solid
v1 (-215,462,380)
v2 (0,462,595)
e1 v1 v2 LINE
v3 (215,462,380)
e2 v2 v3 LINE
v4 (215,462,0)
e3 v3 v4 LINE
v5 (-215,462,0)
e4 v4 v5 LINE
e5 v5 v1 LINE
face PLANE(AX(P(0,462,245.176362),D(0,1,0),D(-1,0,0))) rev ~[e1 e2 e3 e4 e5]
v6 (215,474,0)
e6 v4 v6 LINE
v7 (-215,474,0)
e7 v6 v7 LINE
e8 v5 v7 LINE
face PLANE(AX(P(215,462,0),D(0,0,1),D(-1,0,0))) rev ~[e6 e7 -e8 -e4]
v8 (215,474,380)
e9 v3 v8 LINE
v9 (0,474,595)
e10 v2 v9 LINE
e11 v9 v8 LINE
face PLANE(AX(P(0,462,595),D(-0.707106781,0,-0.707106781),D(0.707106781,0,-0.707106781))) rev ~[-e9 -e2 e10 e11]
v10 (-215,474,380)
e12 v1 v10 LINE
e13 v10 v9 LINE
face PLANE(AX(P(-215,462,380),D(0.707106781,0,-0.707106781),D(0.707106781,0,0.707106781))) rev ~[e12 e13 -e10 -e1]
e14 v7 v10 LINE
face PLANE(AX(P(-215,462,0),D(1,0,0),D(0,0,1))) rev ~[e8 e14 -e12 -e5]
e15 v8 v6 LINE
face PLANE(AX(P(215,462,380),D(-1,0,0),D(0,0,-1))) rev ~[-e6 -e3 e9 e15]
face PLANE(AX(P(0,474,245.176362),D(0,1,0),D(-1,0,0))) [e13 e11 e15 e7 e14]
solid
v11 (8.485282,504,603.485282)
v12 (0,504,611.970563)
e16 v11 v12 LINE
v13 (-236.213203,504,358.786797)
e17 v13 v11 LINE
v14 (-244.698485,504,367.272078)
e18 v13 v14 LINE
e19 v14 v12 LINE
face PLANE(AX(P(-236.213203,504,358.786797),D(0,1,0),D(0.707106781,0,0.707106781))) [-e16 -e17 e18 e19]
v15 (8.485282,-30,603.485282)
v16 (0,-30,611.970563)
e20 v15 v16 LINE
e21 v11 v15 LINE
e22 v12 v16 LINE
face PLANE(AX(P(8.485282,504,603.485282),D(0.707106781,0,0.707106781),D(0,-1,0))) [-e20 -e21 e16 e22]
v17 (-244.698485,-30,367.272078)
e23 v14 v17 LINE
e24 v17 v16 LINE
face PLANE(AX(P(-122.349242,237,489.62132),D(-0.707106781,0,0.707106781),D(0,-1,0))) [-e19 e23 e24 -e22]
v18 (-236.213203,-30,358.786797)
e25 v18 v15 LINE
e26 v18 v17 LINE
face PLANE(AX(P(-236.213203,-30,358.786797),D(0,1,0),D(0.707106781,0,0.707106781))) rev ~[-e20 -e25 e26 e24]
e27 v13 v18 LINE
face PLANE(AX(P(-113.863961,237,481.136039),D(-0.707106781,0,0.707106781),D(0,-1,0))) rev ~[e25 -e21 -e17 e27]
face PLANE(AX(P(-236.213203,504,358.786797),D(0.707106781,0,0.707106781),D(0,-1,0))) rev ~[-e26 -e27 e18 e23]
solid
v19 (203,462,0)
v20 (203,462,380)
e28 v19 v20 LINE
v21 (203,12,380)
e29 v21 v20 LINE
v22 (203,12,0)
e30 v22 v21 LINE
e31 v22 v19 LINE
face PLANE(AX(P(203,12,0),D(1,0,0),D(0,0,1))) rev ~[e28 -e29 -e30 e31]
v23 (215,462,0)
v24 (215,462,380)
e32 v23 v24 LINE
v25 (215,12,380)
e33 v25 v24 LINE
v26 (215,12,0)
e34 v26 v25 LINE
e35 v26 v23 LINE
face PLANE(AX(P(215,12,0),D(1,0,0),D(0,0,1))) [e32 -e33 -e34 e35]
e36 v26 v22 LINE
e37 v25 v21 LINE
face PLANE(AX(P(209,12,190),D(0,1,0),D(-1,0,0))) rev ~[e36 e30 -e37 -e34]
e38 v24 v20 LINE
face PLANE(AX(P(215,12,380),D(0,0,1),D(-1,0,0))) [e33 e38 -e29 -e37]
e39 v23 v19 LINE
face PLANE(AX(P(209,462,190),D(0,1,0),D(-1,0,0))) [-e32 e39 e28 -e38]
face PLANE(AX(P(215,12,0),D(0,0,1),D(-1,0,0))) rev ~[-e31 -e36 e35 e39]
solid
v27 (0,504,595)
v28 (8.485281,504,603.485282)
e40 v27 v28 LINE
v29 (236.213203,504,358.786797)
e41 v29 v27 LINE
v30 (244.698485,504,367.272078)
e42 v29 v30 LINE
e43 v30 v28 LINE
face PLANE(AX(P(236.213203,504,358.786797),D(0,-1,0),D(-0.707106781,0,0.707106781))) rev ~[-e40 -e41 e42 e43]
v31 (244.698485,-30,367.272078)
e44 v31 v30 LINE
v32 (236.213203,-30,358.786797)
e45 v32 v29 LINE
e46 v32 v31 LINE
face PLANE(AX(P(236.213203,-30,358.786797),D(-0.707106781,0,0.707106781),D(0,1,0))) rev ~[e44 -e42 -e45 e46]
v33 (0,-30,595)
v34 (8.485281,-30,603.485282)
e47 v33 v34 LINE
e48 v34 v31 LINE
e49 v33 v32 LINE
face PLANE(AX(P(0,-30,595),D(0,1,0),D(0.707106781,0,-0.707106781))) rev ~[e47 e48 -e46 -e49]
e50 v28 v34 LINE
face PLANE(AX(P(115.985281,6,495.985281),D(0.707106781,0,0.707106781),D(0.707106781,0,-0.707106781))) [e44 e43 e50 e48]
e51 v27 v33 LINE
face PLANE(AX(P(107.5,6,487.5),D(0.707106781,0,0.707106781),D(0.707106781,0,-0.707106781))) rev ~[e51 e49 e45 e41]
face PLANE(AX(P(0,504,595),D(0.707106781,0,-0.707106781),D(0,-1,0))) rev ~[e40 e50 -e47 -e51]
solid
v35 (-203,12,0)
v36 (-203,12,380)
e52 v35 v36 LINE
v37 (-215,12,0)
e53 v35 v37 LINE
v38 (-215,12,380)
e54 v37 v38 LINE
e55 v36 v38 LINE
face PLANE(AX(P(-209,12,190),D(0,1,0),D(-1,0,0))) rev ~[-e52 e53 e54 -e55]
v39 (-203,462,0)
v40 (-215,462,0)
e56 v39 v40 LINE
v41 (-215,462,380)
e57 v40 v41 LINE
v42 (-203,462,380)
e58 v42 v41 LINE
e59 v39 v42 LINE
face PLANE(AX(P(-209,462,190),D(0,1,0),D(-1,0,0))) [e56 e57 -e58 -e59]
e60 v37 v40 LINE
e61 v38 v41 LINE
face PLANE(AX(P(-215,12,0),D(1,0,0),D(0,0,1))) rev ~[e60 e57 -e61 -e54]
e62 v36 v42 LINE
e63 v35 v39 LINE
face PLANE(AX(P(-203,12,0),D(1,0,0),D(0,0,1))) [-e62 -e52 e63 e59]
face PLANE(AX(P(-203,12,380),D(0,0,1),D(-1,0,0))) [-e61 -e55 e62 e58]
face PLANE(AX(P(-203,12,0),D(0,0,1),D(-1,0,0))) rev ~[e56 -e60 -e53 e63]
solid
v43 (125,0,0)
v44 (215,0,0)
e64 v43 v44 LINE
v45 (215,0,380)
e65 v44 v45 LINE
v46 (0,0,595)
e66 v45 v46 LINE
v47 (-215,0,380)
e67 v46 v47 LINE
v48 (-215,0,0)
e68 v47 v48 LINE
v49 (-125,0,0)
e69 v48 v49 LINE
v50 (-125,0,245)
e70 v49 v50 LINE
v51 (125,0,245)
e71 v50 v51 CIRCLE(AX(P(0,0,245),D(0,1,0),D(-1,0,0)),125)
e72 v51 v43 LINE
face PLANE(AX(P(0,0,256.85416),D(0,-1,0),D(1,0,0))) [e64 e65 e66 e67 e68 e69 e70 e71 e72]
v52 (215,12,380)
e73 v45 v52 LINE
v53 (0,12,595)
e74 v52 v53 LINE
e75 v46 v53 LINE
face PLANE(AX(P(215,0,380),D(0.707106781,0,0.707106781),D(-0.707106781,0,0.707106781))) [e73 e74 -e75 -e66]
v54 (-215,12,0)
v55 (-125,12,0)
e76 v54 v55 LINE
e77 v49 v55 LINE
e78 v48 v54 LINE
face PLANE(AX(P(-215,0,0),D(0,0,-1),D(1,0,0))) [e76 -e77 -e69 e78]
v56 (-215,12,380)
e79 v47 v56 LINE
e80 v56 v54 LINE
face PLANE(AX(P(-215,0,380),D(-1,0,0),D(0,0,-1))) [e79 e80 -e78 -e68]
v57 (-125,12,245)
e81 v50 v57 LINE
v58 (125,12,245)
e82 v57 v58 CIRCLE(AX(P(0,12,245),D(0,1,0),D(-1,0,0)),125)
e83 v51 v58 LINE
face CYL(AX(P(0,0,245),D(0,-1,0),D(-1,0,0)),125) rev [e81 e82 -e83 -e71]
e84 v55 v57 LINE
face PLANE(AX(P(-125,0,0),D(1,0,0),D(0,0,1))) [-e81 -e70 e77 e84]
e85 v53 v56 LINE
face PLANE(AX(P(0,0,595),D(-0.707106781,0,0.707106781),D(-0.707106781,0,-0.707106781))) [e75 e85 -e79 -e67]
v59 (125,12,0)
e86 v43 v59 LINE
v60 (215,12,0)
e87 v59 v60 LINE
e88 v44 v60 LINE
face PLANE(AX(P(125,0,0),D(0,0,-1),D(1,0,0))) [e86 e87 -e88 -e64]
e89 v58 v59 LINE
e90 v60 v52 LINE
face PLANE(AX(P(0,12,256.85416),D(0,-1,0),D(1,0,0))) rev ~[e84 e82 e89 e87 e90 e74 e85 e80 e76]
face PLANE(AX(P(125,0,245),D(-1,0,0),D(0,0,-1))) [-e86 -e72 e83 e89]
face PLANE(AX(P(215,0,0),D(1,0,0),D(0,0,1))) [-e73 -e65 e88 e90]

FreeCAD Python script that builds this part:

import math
import FreeCAD as App
import Part
import Sketcher
from FreeCAD import Vector


def add_polygon(sketch, points):
    """Adds a closed chain of lines whose ends are joined by coincident constraints."""
    first, n = sketch.GeometryCount, len(points)
    for a, b in zip(points, points[1:] + points[:1]):
        sketch.addGeometry(Part.LineSegment(App.Vector(*a, 0), App.Vector(*b, 0)), False)
    for i in range(n):
        sketch.addConstraint(Sketcher.Constraint("Coincident", first + i, 2, first + (i + 1) % n, 1))

doc = App.newDocument("Part")
body = doc.addObject("PartDesign::Body", "Body")

# Sketch on XZ plane
sketch1 = doc.addObject("Sketcher::SketchObject", "Sketch")
body.addObject(sketch1)
sketch1.AttachmentSupport = (doc.XZ_Plane, [""])
sketch1.MapMode = "FlatFace"
sketch1.addGeometry(Part.LineSegment(Vector(-215, 380, 0), Vector(-215, 0, 0)), False)
sketch1.addGeometry(Part.LineSegment(Vector(-215, 0, 0), Vector(-125, 0, 0)), False)
sketch1.addGeometry(Part.LineSegment(Vector(-125, 0, 0), Vector(-125, 245, 0)), False)
sketch1.addGeometry(Part.ArcOfCircle(Part.Circle(Vector(0, 245, 0), Vector(0, 0, 1), 125), math.radians(0), math.radians(180)), False)
sketch1.addGeometry(Part.LineSegment(Vector(125, 245, 0), Vector(125, 0, 0)), False)
sketch1.addGeometry(Part.LineSegment(Vector(125, 0, 0), Vector(215, 0, 0)), False)
sketch1.addGeometry(Part.LineSegment(Vector(215, 0, 0), Vector(215, 380, 0)), False)
sketch1.addGeometry(Part.LineSegment(Vector(215, 380, 0), Vector(0, 595, 0)), False)
sketch1.addGeometry(Part.LineSegment(Vector(0, 595, 0), Vector(-215, 380, 0)), False)
sketch1.addConstraint(Sketcher.Constraint("Coincident", 0, 2, 1, 1))
sketch1.addConstraint(Sketcher.Constraint("Coincident", 1, 2, 2, 1))
sketch1.addConstraint(Sketcher.Constraint("Tangent", 2, 2, 3, 2))
sketch1.addConstraint(Sketcher.Constraint("Tangent", 3, 1, 4, 1))
sketch1.addConstraint(Sketcher.Constraint("Coincident", 4, 2, 5, 1))
sketch1.addConstraint(Sketcher.Constraint("Coincident", 5, 2, 6, 1))
sketch1.addConstraint(Sketcher.Constraint("Coincident", 6, 2, 7, 1))
sketch1.addConstraint(Sketcher.Constraint("Coincident", 7, 2, 8, 1))
sketch1.addConstraint(Sketcher.Constraint("Coincident", 8, 2, 0, 1))
sketch1.addConstraint(Sketcher.Constraint("Vertical", 0))
sketch1.addConstraint(Sketcher.Constraint("Horizontal", 1))
sketch1.addConstraint(Sketcher.Constraint("Vertical", 2))
sketch1.addConstraint(Sketcher.Constraint("Vertical", 4))
sketch1.addConstraint(Sketcher.Constraint("Horizontal", 5))
sketch1.addConstraint(Sketcher.Constraint("Vertical", 6))
sketch1.addConstraint(Sketcher.Constraint("Symmetric", 1, 2, 4, 2, -1, 1))
sketch1.addConstraint(Sketcher.Constraint("Symmetric", 0, 2, 5, 2, -2))
sketch1.addConstraint(Sketcher.Constraint("PointOnObject", 7, 2, -2))
sketch1.addConstraint(Sketcher.Constraint("Perpendicular", 7, 8))
sketch1.addConstraint(Sketcher.Constraint("Horizontal", 6, 2, 8, 2))
sketch1.addConstraint(Sketcher.Constraint("Radius", 3, 125.0))
sketch1.addConstraint(Sketcher.Constraint("DistanceX", 1, 1, 1, 2, 90.0))
sketch1.addConstraint(Sketcher.Constraint("DistanceY", 0, 2, 0, 1, 380.0))
sketch1.addConstraint(Sketcher.Constraint("DistanceY", 2, 1, 2, 2, 245.0))
pad1 = doc.addObject("PartDesign::Pad", "Pad")
body.addObject(pad1)
pad1.Profile = sketch1
pad1.Length = 12
pad1.Reversed = True
body2 = doc.addObject("PartDesign::Body", "Body001")
body2.AllowCompound = True

# Sketch on XZ plane
sketch2 = doc.addObject("Sketcher::SketchObject", "Sketch001")
body2.addObject(sketch2)
sketch2.AttachmentSupport = (doc.getObject("XZ_Plane001"), [""])
sketch2.MapMode = "FlatFace"
sketch2.AttachmentOffset = App.Placement(Vector(0, 0, -12), App.Rotation())
add_polygon(sketch2, [(215, 380), (215, 0), (203, 0), (203, 380)])  # lines 0-3
add_polygon(sketch2, [(-203, 380), (-203, 0), (-215, 0), (-215, 380)])  # lines 4-7
sketch2.addConstraint(Sketcher.Constraint("Vertical", 0))
sketch2.addConstraint(Sketcher.Constraint("Horizontal", 1))
sketch2.addConstraint(Sketcher.Constraint("Vertical", 2))
sketch2.addConstraint(Sketcher.Constraint("Horizontal", 3))
sketch2.addConstraint(Sketcher.Constraint("Vertical", 4))
sketch2.addConstraint(Sketcher.Constraint("Horizontal", 5))
sketch2.addConstraint(Sketcher.Constraint("Vertical", 6))
sketch2.addConstraint(Sketcher.Constraint("Horizontal", 7))
sketch2.addConstraint(Sketcher.Constraint("Symmetric", 1, 2, 4, 2, -1, 1))
sketch2.addConstraint(Sketcher.Constraint("Symmetric", 0, 2, 5, 2, -2))
sketch2.addConstraint(Sketcher.Constraint("Horizontal", 3, 2, 6, 2))
sketch2.addConstraint(Sketcher.Constraint("DistanceX", 1, 2, 1, 1, 12.0))
sketch2.addConstraint(Sketcher.Constraint("DistanceY", 0, 2, 0, 1, 380.0))
sketch2.addConstraint(Sketcher.Constraint("DistanceX", -1, 1, 0, 2, 215.0))
pad2 = doc.addObject("PartDesign::Pad", "Pad001")
body2.addObject(pad2)
pad2.Profile = sketch2
pad2.Length = 450
pad2.Reversed = True
body3 = doc.addObject("PartDesign::Body", "Body002")

# Sketch on XZ plane
sketch3 = doc.addObject("Sketcher::SketchObject", "Sketch002")
body3.addObject(sketch3)
sketch3.AttachmentSupport = (doc.getObject("XZ_Plane002"), [""])
sketch3.MapMode = "FlatFace"
sketch3.AttachmentOffset = App.Placement(Vector(0, 0, -462), App.Rotation())
add_polygon(sketch3, [(215, 380), (215, 0), (-215, 0), (-215, 380), (0, 595)])  # lines 0-4
sketch3.addConstraint(Sketcher.Constraint("Vertical", 0))
sketch3.addConstraint(Sketcher.Constraint("Horizontal", 1))
sketch3.addConstraint(Sketcher.Constraint("Vertical", 2))
sketch3.addConstraint(Sketcher.Constraint("Symmetric", 0, 2, 1, 2, -1, 1))
sketch3.addConstraint(Sketcher.Constraint("PointOnObject", 3, 2, -2))
sketch3.addConstraint(Sketcher.Constraint("Perpendicular", 3, 4))
sketch3.addConstraint(Sketcher.Constraint("Horizontal", 2, 2, 4, 2))
sketch3.addConstraint(Sketcher.Constraint("DistanceX", 1, 2, 1, 1, 430.0))
sketch3.addConstraint(Sketcher.Constraint("DistanceY", 0, 2, 0, 1, 380.0))
pad3 = doc.addObject("PartDesign::Pad", "Pad002")
body3.addObject(pad3)
pad3.Profile = sketch3
pad3.Length = 12
pad3.Reversed = True
body4 = doc.addObject("PartDesign::Body", "Body003")

# Sketch on an angled plane
sketch4 = doc.addObject("Sketcher::SketchObject", "Sketch003")
body4.addObject(sketch4)
sketch4.Placement = App.Placement(Vector(297.5, 0, 297.5), App.Rotation(Vector(0.707106781, 0, -0.707106781), Vector(0, 0.999999999, 0), Vector(0.707106781, 0, 0.707106781), "ZXY"))
add_polygon(sketch4, [(-421, -30), (-87, -30), (-87, 504), (-421, 504)])  # lines 0-3
sketch4.addConstraint(Sketcher.Constraint("Horizontal", 0))
sketch4.addConstraint(Sketcher.Constraint("Vertical", 1))
sketch4.addConstraint(Sketcher.Constraint("Horizontal", 2))
sketch4.addConstraint(Sketcher.Constraint("Vertical", 3))
sketch4.addConstraint(Sketcher.Constraint("DistanceY", 1, 1, 1, 2, 533.999999))
sketch4.addConstraint(Sketcher.Constraint("DistanceY", 0, 2, -1, 1, 30.0))
sketch4.addConstraint(Sketcher.Constraint("DistanceX", 0, 1, 0, 2, 334.055916))
sketch4.addConstraint(Sketcher.Constraint("DistanceX", 0, 2, -1, 1, 86.672619))
pad4 = doc.addObject("PartDesign::Pad", "Pad003")
body4.addObject(pad4)
pad4.Profile = sketch4
pad4.Length = 12
body5 = doc.addObject("PartDesign::Body", "Body004")

# Sketch on an angled plane
sketch5 = doc.addObject("Sketcher::SketchObject", "Sketch004")
body5.addObject(sketch5)
sketch5.Placement = App.Placement(Vector(-297.5, 0, 297.5), App.Rotation(Vector(0, -1, 0), Vector(0.707106781, 0, 0.707106781), Vector(-0.707106781, 0, 0.707106781), "ZXY"))
add_polygon(sketch5, [(-504, 433), (-504, 87), (30, 87), (30, 433)])  # lines 0-3
sketch5.addConstraint(Sketcher.Constraint("Vertical", 0))
sketch5.addConstraint(Sketcher.Constraint("Horizontal", 1))
sketch5.addConstraint(Sketcher.Constraint("Vertical", 2))
sketch5.addConstraint(Sketcher.Constraint("Horizontal", 3))
sketch5.addConstraint(Sketcher.Constraint("DistanceX", 1, 1, 1, 2, 534.0))
sketch5.addConstraint(Sketcher.Constraint("DistanceX", 0, 2, -1, 1, 504.0))
sketch5.addConstraint(Sketcher.Constraint("DistanceY", 0, 2, 0, 1, 346.055916))
sketch5.addConstraint(Sketcher.Constraint("DistanceY", -1, 1, 0, 2, 86.672619))
pad5 = doc.addObject("PartDesign::Pad", "Pad004")
body5.addObject(pad5)
pad5.Profile = sketch5
pad5.Length = 12

doc.recompute()
